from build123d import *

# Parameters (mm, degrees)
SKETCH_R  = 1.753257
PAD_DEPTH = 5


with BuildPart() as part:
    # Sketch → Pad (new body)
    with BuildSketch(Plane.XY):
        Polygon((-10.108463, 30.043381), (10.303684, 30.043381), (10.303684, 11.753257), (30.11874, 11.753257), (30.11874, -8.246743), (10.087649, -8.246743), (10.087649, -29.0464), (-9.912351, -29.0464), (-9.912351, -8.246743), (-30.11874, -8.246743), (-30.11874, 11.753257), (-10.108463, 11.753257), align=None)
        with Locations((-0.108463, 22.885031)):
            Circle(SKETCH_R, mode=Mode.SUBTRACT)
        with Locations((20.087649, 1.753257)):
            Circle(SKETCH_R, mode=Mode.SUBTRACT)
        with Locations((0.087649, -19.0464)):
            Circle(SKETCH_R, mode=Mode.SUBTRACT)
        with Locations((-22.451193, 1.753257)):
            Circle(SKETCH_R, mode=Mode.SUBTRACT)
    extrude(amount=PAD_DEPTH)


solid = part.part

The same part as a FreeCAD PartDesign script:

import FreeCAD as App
import Part
import Sketcher
from FreeCAD import Vector


def add_polygon(sketch, points):
    """Adds a closed chain of lines whose ends are joined by coincident constraints."""
    first, n = sketch.GeometryCount, len(points)
    for a, b in zip(points, points[1:] + points[:1]):
        sketch.addGeometry(Part.LineSegment(App.Vector(*a, 0), App.Vector(*b, 0)), False)
    for i in range(n):
        sketch.addConstraint(Sketcher.Constraint("Coincident", first + i, 2, first + (i + 1) % n, 1))

doc = App.newDocument("Part")
body = doc.addObject("PartDesign::Body", "Body")

# Sketch on XY plane
sketch1 = body.newObject("Sketcher::SketchObject", "Sketch")
sketch1.AttachmentSupport = (doc.getObject("XY_Plane"), [""])
sketch1.MapMode = "FlatFace"
add_polygon(sketch1, [(10.3, 30), (-10.1, 30), (-10.1, 11.8), (-30.1, 11.8), (-30.1, -8.2), (-9.9, -8.2), (-9.9, -29), (10.1, -29), (10.1, -8.2), (30.1, -8.2), (30.1, 11.8), (10.3, 11.8)])  # lines 0-11
sketch1.addGeometry(Part.Circle(Vector(0.1, -19, 0), Vector(0, 0, 1), 1.8), False)  # 12
sketch1.addGeometry(Part.Circle(Vector(20.1, 1.8, 0), Vector(0, 0, 1), 1.8), False)  # 13
sketch1.addGeometry(Part.Circle(Vector(-22.5, 1.8, 0), Vector(0, 0, 1), 1.8), False)  # 14
sketch1.addGeometry(Part.Circle(Vector(-0.1, 22.9, 0), Vector(0, 0, 1), 1.8), False)  # 15
sketch1.addConstraint([
    Sketcher.Constraint("Horizontal", 0),
    Sketcher.Constraint("Vertical", 1),
    Sketcher.Constraint("Horizontal", 2),
    Sketcher.Constraint("Vertical", 3),
    Sketcher.Constraint("Horizontal", 4),
    Sketcher.Constraint("Vertical", 5),
    Sketcher.Constraint("Horizontal", 6),
    Sketcher.Constraint("Vertical", 7),
    Sketcher.Constraint("Horizontal", 8),
    Sketcher.Constraint("Vertical", 9),
    Sketcher.Constraint("Horizontal", 10),
    Sketcher.Constraint("Vertical", 11),
    Sketcher.Constraint("Equal", 12, 13),
    Sketcher.Constraint("Equal", 13, 14),
    Sketcher.Constraint("Equal", 14, 15),
    Sketcher.Constraint("Symmetric", 3, 2, 8, 2, -2),
    Sketcher.Constraint("Horizontal", 13, 3, 14, 3),
    Sketcher.Constraint("Horizontal", 2, 2, 9, 2),
    Sketcher.Constraint("Equal", 6, 3),
    Sketcher.Constraint("DistanceX", 6, 1, 6, 2, 20.0),
    Sketcher.Constraint("DistanceX", 12, 3, 13, 3, 20.0),
    Sketcher.Constraint("DistanceX", 0, 2, 15, 3, 10.0),
    Sketcher.Constraint("DistanceY", 14, 3, 1, 2, 10.0),
    Sketcher.Constraint("DistanceX", 4, 2, 12, 3, 10.0),
    Sketcher.Constraint("DistanceY", 5, 2, 12, 3, 10.0),
    Sketcher.Constraint("Diameter", 12, 3.506514),
    Sketcher.Constraint("DistanceX", 4, 1, 4, 2, 20.206389),
    Sketcher.Constraint("DistanceX", 8, 1, 8, 2, 20.031091),
    Sketcher.Constraint("DistanceY", 12, 3, -1, 1, 19.0464),
    Sketcher.Constraint("DistanceX", 0, 2, 0, 1, 20.412147),
    Sketcher.Constraint("DistanceX", 2, 2, 2, 1, 20.010277),
    Sketcher.Constraint("DistanceY", 1, 2, 1, 1, 18.290124),
    Sketcher.Constraint("DistanceY", 5, 2, 5, 1, 20.799657),
    Sketcher.Constraint("DistanceY", -1, 1, 15, 3, 22.885031),
    Sketcher.Constraint("DistanceX", 14, 3, 12, 3, 22.538842),
])
pad1 = body.newObject("PartDesign::Pad", "Pad")
pad1.Profile = sketch1
pad1.Length = 5

doc.recompute()
